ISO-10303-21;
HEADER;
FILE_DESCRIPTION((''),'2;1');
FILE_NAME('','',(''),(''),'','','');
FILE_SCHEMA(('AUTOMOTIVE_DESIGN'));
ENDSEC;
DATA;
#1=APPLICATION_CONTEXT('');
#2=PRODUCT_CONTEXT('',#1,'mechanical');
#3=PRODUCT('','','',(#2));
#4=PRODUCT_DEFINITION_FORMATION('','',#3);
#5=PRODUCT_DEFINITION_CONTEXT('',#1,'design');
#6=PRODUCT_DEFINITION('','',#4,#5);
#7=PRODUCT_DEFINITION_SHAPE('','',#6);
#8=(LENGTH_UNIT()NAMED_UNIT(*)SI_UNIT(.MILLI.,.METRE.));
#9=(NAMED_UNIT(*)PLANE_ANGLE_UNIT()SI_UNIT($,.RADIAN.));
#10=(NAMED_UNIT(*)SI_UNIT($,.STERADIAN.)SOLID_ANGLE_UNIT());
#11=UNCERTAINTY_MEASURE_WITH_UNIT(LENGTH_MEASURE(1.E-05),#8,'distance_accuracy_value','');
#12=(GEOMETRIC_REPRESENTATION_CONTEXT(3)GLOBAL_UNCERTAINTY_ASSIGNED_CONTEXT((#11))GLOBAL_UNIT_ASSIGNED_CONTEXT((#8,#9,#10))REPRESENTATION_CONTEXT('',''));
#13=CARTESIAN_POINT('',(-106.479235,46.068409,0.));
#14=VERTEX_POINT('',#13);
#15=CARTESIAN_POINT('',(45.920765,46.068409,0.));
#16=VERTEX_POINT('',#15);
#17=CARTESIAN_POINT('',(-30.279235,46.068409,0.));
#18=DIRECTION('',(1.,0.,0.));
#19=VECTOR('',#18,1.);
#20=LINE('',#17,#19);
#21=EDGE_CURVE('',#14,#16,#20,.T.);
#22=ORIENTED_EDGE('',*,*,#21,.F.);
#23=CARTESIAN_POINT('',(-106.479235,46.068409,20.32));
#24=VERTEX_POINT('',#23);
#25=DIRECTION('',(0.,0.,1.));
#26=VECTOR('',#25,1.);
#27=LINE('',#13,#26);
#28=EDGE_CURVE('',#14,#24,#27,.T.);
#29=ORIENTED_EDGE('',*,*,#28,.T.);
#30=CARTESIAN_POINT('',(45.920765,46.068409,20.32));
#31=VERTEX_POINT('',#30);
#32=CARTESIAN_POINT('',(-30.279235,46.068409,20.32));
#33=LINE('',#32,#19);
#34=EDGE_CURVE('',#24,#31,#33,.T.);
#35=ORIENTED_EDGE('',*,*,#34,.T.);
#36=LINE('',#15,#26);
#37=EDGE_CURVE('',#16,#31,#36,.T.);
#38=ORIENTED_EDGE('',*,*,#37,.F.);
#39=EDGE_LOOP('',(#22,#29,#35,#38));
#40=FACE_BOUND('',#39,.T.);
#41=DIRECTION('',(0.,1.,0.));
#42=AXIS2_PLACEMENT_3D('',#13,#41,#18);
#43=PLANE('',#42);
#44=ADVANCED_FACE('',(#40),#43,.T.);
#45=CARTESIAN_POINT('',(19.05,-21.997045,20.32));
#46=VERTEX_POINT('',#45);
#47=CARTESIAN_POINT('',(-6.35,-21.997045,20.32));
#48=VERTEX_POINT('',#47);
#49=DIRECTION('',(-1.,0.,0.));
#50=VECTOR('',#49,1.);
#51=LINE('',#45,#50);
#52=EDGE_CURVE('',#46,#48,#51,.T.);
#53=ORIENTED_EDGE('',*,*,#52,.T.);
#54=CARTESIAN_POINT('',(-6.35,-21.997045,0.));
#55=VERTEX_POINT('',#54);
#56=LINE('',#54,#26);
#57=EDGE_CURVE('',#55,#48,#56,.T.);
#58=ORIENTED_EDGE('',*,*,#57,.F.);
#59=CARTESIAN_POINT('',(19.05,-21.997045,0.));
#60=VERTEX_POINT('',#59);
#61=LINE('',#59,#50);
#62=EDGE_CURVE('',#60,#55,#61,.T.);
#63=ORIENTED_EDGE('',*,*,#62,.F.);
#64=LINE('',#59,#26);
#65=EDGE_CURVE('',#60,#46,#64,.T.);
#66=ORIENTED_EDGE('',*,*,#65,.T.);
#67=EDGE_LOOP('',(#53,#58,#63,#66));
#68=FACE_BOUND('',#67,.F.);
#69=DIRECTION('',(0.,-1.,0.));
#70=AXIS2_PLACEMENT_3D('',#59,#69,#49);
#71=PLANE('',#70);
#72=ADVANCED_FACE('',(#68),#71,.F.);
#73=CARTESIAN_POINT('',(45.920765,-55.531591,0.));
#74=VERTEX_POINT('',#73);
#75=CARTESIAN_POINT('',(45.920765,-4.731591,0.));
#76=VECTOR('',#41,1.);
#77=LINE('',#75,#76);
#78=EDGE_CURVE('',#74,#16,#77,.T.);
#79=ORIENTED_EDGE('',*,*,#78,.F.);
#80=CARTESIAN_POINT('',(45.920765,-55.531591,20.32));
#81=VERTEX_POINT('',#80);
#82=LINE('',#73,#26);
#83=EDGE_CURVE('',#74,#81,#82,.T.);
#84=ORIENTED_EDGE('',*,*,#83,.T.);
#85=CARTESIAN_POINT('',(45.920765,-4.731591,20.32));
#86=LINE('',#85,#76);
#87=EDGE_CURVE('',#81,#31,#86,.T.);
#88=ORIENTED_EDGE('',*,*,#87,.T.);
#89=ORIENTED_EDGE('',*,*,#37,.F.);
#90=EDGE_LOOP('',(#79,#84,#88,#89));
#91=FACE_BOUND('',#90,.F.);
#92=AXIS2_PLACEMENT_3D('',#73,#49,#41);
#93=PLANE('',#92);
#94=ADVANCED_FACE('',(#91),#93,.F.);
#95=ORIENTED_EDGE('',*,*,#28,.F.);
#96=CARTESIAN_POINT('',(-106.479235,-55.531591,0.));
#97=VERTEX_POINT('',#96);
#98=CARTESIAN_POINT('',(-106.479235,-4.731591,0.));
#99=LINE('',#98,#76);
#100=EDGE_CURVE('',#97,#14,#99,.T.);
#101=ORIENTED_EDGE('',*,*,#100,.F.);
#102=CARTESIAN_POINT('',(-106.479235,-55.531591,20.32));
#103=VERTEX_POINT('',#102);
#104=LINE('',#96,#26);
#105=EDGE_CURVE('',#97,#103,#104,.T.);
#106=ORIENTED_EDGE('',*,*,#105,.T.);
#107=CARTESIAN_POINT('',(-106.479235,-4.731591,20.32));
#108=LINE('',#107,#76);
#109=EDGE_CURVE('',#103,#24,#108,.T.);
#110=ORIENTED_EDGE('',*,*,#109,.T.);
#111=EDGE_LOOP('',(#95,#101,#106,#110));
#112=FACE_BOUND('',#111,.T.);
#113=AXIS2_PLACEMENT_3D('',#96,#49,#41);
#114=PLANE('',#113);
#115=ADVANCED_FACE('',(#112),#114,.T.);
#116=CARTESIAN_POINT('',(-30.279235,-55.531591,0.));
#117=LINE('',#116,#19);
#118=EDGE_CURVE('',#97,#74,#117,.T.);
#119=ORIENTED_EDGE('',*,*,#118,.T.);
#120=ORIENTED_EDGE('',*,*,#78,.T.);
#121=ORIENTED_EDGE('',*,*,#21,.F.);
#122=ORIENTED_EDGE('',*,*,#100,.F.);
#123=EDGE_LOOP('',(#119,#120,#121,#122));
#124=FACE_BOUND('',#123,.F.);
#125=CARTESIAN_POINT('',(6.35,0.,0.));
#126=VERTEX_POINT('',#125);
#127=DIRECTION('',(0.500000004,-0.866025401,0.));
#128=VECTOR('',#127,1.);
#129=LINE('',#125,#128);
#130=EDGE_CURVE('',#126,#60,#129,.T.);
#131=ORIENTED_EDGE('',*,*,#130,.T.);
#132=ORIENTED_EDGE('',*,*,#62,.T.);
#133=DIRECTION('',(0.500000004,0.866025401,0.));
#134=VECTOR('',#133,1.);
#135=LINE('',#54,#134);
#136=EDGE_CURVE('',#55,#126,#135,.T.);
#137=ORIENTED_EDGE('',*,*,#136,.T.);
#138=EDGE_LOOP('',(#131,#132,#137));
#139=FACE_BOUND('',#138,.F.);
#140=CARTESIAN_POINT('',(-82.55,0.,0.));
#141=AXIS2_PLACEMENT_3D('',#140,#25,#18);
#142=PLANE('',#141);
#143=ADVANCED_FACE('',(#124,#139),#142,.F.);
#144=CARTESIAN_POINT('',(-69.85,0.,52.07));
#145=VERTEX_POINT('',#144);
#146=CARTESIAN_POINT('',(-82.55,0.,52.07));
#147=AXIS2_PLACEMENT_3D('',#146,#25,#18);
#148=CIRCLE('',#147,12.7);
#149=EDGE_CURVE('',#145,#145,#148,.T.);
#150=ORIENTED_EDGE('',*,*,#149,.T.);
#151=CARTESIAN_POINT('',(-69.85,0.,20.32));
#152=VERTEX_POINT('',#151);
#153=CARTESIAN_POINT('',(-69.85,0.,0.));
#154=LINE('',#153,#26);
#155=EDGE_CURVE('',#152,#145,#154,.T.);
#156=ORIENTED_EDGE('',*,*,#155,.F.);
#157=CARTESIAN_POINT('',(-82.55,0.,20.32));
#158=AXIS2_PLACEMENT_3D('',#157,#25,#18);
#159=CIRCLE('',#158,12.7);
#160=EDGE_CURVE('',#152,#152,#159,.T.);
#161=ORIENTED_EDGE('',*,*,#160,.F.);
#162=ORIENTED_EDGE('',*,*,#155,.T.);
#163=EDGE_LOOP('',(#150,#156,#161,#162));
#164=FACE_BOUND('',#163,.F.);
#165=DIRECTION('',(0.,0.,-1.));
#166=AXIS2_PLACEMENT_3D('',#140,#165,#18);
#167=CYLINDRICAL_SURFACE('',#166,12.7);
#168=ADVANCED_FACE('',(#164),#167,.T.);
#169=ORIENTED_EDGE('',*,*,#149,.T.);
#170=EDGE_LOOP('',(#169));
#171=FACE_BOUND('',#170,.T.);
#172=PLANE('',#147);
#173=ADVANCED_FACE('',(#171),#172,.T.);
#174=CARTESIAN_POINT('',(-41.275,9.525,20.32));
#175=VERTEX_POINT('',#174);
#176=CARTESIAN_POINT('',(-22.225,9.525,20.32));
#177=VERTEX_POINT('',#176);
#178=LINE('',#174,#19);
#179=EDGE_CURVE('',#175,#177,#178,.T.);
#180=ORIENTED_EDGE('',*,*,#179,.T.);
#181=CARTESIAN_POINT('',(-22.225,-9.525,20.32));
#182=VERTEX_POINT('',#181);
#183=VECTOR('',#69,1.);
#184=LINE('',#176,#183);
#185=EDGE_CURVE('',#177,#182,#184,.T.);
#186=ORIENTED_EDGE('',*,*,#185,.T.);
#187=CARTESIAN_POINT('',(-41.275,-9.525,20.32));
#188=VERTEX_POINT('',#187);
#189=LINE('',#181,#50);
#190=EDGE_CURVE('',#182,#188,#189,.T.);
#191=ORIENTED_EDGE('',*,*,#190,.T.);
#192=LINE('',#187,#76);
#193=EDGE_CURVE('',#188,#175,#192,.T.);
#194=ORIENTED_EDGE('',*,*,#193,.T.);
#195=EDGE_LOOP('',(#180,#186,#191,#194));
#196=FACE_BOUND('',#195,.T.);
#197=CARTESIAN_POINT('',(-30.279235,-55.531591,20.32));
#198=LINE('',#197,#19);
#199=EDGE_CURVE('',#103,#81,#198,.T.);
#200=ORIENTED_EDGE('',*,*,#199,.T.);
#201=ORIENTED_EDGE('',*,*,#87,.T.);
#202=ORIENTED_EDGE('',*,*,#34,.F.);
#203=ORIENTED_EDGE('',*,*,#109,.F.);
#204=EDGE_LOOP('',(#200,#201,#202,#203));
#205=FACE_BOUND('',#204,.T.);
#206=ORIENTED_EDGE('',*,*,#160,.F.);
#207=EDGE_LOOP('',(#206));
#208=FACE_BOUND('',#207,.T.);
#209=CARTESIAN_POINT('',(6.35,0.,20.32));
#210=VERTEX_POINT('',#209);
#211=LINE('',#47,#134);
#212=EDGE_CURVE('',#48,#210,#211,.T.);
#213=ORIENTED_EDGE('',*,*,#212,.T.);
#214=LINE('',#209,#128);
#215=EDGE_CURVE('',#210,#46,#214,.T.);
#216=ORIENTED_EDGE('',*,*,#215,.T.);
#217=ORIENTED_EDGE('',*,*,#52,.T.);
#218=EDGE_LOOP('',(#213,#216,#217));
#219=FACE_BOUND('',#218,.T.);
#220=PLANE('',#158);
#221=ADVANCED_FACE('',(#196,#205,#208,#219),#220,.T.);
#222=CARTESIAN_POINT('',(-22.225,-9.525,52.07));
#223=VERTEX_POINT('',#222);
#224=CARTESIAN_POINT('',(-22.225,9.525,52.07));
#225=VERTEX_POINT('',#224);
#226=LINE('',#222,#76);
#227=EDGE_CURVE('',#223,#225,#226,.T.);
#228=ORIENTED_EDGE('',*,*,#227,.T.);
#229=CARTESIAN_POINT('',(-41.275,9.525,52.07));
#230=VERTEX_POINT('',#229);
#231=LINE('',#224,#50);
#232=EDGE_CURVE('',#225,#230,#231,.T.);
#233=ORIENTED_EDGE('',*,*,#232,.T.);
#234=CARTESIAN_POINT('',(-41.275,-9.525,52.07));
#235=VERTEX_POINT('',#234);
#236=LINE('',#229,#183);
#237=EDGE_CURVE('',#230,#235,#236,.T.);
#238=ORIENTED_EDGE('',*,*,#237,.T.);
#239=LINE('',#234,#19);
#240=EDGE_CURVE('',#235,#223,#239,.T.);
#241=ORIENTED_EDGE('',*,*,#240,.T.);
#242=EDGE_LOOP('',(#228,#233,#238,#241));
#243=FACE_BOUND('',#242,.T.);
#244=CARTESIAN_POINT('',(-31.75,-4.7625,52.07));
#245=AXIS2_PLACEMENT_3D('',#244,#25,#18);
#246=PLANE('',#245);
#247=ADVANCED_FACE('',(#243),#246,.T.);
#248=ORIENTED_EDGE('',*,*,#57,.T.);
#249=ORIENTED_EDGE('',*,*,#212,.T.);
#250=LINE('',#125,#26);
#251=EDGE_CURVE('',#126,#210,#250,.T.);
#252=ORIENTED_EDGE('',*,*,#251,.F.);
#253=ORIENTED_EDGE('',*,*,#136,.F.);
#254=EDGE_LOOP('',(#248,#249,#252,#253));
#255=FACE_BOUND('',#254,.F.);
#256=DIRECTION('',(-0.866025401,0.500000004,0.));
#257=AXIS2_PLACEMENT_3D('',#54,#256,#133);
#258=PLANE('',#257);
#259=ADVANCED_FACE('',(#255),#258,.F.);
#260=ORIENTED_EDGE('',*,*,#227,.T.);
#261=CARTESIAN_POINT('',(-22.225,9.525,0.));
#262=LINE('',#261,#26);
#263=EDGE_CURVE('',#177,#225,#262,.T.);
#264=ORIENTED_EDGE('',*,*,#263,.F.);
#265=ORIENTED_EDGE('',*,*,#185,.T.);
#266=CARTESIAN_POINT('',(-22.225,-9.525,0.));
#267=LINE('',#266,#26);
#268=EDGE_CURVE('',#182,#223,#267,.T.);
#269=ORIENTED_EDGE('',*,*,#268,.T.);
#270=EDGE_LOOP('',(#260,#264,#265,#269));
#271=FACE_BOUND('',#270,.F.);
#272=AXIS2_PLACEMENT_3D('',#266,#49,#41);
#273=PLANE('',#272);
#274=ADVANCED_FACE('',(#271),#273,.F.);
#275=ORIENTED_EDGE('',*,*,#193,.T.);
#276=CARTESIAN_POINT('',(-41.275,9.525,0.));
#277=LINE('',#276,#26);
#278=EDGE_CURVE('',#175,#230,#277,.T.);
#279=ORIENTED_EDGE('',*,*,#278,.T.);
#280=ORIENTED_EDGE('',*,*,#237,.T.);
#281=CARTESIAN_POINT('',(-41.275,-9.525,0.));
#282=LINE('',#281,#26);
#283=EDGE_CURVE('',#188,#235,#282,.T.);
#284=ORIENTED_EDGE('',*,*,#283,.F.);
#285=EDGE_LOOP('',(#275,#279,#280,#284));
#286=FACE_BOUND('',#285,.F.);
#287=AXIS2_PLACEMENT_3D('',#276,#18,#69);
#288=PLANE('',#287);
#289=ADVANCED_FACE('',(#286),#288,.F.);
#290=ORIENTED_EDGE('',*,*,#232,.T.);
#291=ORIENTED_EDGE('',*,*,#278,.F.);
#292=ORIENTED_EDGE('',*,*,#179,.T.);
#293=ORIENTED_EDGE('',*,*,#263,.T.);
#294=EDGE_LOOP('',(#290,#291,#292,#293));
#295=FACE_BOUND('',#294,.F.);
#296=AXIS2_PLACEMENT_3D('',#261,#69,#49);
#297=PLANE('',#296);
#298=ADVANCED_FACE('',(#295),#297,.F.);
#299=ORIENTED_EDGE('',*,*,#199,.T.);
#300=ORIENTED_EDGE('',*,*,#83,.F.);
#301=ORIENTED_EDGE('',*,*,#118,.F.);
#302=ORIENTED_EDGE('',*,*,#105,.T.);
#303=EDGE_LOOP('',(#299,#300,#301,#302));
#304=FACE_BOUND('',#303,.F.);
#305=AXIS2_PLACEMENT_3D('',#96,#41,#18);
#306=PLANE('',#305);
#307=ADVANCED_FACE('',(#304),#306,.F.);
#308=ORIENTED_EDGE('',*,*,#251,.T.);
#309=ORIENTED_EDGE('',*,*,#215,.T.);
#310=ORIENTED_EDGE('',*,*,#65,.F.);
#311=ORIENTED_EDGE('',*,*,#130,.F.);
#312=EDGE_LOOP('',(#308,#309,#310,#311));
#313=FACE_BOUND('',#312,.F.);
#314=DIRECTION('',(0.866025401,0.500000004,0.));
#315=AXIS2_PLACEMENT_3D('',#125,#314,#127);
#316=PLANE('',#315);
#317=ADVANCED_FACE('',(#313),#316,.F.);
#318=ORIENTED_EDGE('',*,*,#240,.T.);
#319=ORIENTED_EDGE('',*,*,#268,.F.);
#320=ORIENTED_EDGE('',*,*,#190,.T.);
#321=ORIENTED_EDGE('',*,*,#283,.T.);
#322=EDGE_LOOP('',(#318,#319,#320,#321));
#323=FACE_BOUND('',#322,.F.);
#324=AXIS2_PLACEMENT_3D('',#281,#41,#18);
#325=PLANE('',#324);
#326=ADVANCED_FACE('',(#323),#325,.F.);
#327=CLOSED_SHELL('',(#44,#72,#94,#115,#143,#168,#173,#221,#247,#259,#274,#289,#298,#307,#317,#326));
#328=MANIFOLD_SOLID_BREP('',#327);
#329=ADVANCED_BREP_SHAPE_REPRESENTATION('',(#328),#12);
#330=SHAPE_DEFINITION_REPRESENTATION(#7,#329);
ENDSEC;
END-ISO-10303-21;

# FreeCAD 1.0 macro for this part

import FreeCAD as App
import Part
import Sketcher
from FreeCAD import Vector
Q = App.Units.Quantity

doc = App.newDocument("Part")
params = doc.addObject("Spreadsheet::Sheet", "Params")
for row, (alias, value) in enumerate([
    ("sketch1_diameter", "1 in"),
    ("sketch1_width", "6 in"),
    ("sketch1_width2", "1 in"),
    ("sketch1_height", "4 in"),
    ("sketch1_length", "1 in"),
    ("pad1_length", "0.8 in"),
    ("sketch2_width", "0.75 in"),
    ("pad2_length", "2.05 in"),
    ("sketch3_diameter", "1 in"),
    ("pad3_length", "2.05 in"),
], start=1):
    params.set(f"A{row}", alias)
    params.set(f"B{row}", "=" + value)
    params.setAlias(f"B{row}", alias)

body = doc.addObject("PartDesign::Body", "Body")

sketch1 = doc.addObject("Sketcher::SketchObject", "Sketch")
body.addObject(sketch1)
sketch1.AttachmentSupport = (doc.XY_Plane, [""])
sketch1.MapMode = "FlatFace"
sketch1.addGeometry(Part.LineSegment(Vector(-106, 46, 0), Vector(-106, -56, 0)), False)
sketch1.addGeometry(Part.LineSegment(Vector(-106, -56, 0), Vector(46, -56, 0)), False)
sketch1.addGeometry(Part.LineSegment(Vector(46, -56, 0), Vector(46, 46, 0)), False)
sketch1.addGeometry(Part.LineSegment(Vector(46, 46, 0), Vector(-106, 46, 0)), False)
sketch1.addGeometry(Part.LineSegment(Vector(19, -22, 0), Vector(-6, -22, 0)), False)
sketch1.addGeometry(Part.LineSegment(Vector(-6, -22, 0), Vector(6, 0, 0)), False)
sketch1.addGeometry(Part.LineSegment(Vector(6, 0, 0), Vector(19, -22, 0)), False)
sketch1.addGeometry(Part.Circle(Vector(-83, 0, 0), Vector(0, 0, 1), 13), False)
sketch1.addGeometry(Part.LineSegment(Vector(-41, 10, 0), Vector(-22, 10, 0)), False)
sketch1.addGeometry(Part.LineSegment(Vector(-22, 10, 0), Vector(-22, -10, 0)), False)
sketch1.addGeometry(Part.LineSegment(Vector(-22, -10, 0), Vector(-41, -10, 0)), False)
sketch1.addGeometry(Part.LineSegment(Vector(-41, -10, 0), Vector(-41, 10, 0)), False)
sketch1.addConstraint(Sketcher.Constraint("Coincident", 0, 2, 1, 1))
sketch1.addConstraint(Sketcher.Constraint("Coincident", 1, 2, 2, 1))
sketch1.addConstraint(Sketcher.Constraint("Coincident", 2, 2, 3, 1))
sketch1.addConstraint(Sketcher.Constraint("Coincident", 3, 2, 0, 1))
sketch1.addConstraint(Sketcher.Constraint("Coincident", 4, 2, 5, 1))
sketch1.addConstraint(Sketcher.Constraint("Coincident", 5, 2, 6, 1))
sketch1.addConstraint(Sketcher.Constraint("Coincident", 6, 2, 4, 1))
sketch1.addConstraint(Sketcher.Constraint("Coincident", 8, 2, 9, 1))
sketch1.addConstraint(Sketcher.Constraint("Coincident", 9, 2, 10, 1))
sketch1.addConstraint(Sketcher.Constraint("Coincident", 10, 2, 11, 1))
sketch1.addConstraint(Sketcher.Constraint("Coincident", 11, 2, 8, 1))
sketch1.addConstraint(Sketcher.Constraint("Vertical", 0))
sketch1.addConstraint(Sketcher.Constraint("Horizontal", 1))
sketch1.addConstraint(Sketcher.Constraint("Vertical", 2))
sketch1.addConstraint(Sketcher.Constraint("Horizontal", 3))
sketch1.addConstraint(Sketcher.Constraint("Horizontal", 4))
sketch1.addConstraint(Sketcher.Constraint("Horizontal", 8))
sketch1.addConstraint(Sketcher.Constraint("Vertical", 9))
sketch1.addConstraint(Sketcher.Constraint("Horizontal", 10))
sketch1.addConstraint(Sketcher.Constraint("Vertical", 11))
sketch1.addConstraint(Sketcher.Constraint("PointOnObject", 7, 3, -1))
sketch1.addConstraint(Sketcher.Constraint("PointOnObject", 5, 2, -1))
sketch1.addConstraint(Sketcher.Constraint("Equal", 10, 9))
sketch1.addConstraint(Sketcher.Constraint("Equal", 5, 6))
sketch1.addConstraint(Sketcher.Constraint("Diameter", 7, Q("1 in")))
sketch1.addConstraint(Sketcher.Constraint("DistanceX", 1, 1, 1, 2, Q("6 in")))
sketch1.addConstraint(Sketcher.Constraint("DistanceX", 4, 2, 4, 1, Q("1 in")))
sketch1.addConstraint(Sketcher.Constraint("DistanceY", 0, 2, 0, 1, Q("4 in")))
sketch1.addConstraint(Sketcher.Constraint("Distance", 5, Q("1 in")))
sketch1.addConstraint(Sketcher.Constraint("DistanceX", 7, 3, 4, 2, Q("3 in")))
sketch1.addConstraint(Sketcher.Constraint("DistanceX", 8, 1, 8, 2, Q("0.75 in")))
sketch1.addConstraint(Sketcher.Constraint("DistanceX", 7, 3, -1, 1, Q("3.25 in")))
sketch1.addConstraint(Sketcher.Constraint("DistanceX", 8, 2, -1, 1, Q("0.875 in")))
sketch1.addConstraint(Sketcher.Constraint("DistanceY", -1, 1, 8, 2, Q("0.375 in")))
sketch1.addConstraint(Sketcher.Constraint("DistanceY", 0, 2, -1, 1, Q("55.531591 mm")))
sketch1.addConstraint(Sketcher.Constraint("DistanceX", 0, 2, -1, 1, Q("106.479235 mm")))
sketch1.setExpression("Constraints[24]", "Params.sketch1_diameter")
sketch1.setExpression("Constraints[25]", "Params.sketch1_width")
sketch1.setExpression("Constraints[26]", "Params.sketch1_width2")
sketch1.setExpression("Constraints[27]", "Params.sketch1_height")
sketch1.setExpression("Constraints[28]", "Params.sketch1_length")
pad1 = doc.addObject("PartDesign::Pad", "Pad")
body.addObject(pad1)
pad1.Profile = sketch1
pad1.setExpression("Length", "Params.pad1_length")

sketch2 = doc.addObject("Sketcher::SketchObject", "Sketch001")
body.addObject(sketch2)
sketch2.AttachmentSupport = (doc.XY_Plane, [""])
sketch2.MapMode = "FlatFace"
sketch2.addGeometry(Part.LineSegment(Vector(-22, -10, 0), Vector(-22, 10, 0)), False)
sketch2.addGeometry(Part.LineSegment(Vector(-22, 10, 0), Vector(-41, 10, 0)), False)
sketch2.addGeometry(Part.LineSegment(Vector(-41, 10, 0), Vector(-41, -10, 0)), False)
sketch2.addGeometry(Part.LineSegment(Vector(-41, -10, 0), Vector(-22, -10, 0)), False)
sketch2.addConstraint(Sketcher.Constraint("Coincident", 0, 2, 1, 1))
sketch2.addConstraint(Sketcher.Constraint("Coincident", 1, 2, 2, 1))
sketch2.addConstraint(Sketcher.Constraint("Coincident", 2, 2, 3, 1))
sketch2.addConstraint(Sketcher.Constraint("Coincident", 3, 2, 0, 1))
sketch2.addConstraint(Sketcher.Constraint("Vertical", 0))
sketch2.addConstraint(Sketcher.Constraint("Horizontal", 1))
sketch2.addConstraint(Sketcher.Constraint("Vertical", 2))
sketch2.addConstraint(Sketcher.Constraint("Horizontal", 3))
sketch2.addConstraint(Sketcher.Constraint("Equal", 3, 0))
sketch2.addConstraint(Sketcher.Constraint("DistanceX", 1, 2, 1, 1, Q("0.75 in")))
sketch2.addConstraint(Sketcher.Constraint("DistanceX", 0, 2, -1, 1, Q("0.875 in")))
sketch2.addConstraint(Sketcher.Constraint("DistanceY", -1, 1, 0, 2, Q("0.375 in")))
sketch2.setExpression("Constraints[9]", "Params.sketch2_width")
pad2 = doc.addObject("PartDesign::Pad", "Pad001")
body.addObject(pad2)
pad2.Profile = sketch2
pad2.setExpression("Length", "Params.pad2_length")

sketch3 = doc.addObject("Sketcher::SketchObject", "Sketch002")
body.addObject(sketch3)
sketch3.AttachmentSupport = (doc.XY_Plane, [""])
sketch3.MapMode = "FlatFace"
sketch3.addGeometry(Part.Circle(Vector(-83, 0, 0), Vector(0, 0, 1), 13), False)
sketch3.addConstraint(Sketcher.Constraint("PointOnObject", 0, 3, -1))
sketch3.addConstraint(Sketcher.Constraint("Diameter", 0, Q("1 in")))
sketch3.addConstraint(Sketcher.Constraint("DistanceX", 0, 3, -1, 1, Q("3.25 in")))
sketch3.setExpression("Constraints[1]", "Params.sketch3_diameter")
pad3 = doc.addObject("PartDesign::Pad", "Pad002")
body.addObject(pad3)
pad3.Profile = sketch3
pad3.setExpression("Length", "Params.pad3_length")

doc.recompute()
